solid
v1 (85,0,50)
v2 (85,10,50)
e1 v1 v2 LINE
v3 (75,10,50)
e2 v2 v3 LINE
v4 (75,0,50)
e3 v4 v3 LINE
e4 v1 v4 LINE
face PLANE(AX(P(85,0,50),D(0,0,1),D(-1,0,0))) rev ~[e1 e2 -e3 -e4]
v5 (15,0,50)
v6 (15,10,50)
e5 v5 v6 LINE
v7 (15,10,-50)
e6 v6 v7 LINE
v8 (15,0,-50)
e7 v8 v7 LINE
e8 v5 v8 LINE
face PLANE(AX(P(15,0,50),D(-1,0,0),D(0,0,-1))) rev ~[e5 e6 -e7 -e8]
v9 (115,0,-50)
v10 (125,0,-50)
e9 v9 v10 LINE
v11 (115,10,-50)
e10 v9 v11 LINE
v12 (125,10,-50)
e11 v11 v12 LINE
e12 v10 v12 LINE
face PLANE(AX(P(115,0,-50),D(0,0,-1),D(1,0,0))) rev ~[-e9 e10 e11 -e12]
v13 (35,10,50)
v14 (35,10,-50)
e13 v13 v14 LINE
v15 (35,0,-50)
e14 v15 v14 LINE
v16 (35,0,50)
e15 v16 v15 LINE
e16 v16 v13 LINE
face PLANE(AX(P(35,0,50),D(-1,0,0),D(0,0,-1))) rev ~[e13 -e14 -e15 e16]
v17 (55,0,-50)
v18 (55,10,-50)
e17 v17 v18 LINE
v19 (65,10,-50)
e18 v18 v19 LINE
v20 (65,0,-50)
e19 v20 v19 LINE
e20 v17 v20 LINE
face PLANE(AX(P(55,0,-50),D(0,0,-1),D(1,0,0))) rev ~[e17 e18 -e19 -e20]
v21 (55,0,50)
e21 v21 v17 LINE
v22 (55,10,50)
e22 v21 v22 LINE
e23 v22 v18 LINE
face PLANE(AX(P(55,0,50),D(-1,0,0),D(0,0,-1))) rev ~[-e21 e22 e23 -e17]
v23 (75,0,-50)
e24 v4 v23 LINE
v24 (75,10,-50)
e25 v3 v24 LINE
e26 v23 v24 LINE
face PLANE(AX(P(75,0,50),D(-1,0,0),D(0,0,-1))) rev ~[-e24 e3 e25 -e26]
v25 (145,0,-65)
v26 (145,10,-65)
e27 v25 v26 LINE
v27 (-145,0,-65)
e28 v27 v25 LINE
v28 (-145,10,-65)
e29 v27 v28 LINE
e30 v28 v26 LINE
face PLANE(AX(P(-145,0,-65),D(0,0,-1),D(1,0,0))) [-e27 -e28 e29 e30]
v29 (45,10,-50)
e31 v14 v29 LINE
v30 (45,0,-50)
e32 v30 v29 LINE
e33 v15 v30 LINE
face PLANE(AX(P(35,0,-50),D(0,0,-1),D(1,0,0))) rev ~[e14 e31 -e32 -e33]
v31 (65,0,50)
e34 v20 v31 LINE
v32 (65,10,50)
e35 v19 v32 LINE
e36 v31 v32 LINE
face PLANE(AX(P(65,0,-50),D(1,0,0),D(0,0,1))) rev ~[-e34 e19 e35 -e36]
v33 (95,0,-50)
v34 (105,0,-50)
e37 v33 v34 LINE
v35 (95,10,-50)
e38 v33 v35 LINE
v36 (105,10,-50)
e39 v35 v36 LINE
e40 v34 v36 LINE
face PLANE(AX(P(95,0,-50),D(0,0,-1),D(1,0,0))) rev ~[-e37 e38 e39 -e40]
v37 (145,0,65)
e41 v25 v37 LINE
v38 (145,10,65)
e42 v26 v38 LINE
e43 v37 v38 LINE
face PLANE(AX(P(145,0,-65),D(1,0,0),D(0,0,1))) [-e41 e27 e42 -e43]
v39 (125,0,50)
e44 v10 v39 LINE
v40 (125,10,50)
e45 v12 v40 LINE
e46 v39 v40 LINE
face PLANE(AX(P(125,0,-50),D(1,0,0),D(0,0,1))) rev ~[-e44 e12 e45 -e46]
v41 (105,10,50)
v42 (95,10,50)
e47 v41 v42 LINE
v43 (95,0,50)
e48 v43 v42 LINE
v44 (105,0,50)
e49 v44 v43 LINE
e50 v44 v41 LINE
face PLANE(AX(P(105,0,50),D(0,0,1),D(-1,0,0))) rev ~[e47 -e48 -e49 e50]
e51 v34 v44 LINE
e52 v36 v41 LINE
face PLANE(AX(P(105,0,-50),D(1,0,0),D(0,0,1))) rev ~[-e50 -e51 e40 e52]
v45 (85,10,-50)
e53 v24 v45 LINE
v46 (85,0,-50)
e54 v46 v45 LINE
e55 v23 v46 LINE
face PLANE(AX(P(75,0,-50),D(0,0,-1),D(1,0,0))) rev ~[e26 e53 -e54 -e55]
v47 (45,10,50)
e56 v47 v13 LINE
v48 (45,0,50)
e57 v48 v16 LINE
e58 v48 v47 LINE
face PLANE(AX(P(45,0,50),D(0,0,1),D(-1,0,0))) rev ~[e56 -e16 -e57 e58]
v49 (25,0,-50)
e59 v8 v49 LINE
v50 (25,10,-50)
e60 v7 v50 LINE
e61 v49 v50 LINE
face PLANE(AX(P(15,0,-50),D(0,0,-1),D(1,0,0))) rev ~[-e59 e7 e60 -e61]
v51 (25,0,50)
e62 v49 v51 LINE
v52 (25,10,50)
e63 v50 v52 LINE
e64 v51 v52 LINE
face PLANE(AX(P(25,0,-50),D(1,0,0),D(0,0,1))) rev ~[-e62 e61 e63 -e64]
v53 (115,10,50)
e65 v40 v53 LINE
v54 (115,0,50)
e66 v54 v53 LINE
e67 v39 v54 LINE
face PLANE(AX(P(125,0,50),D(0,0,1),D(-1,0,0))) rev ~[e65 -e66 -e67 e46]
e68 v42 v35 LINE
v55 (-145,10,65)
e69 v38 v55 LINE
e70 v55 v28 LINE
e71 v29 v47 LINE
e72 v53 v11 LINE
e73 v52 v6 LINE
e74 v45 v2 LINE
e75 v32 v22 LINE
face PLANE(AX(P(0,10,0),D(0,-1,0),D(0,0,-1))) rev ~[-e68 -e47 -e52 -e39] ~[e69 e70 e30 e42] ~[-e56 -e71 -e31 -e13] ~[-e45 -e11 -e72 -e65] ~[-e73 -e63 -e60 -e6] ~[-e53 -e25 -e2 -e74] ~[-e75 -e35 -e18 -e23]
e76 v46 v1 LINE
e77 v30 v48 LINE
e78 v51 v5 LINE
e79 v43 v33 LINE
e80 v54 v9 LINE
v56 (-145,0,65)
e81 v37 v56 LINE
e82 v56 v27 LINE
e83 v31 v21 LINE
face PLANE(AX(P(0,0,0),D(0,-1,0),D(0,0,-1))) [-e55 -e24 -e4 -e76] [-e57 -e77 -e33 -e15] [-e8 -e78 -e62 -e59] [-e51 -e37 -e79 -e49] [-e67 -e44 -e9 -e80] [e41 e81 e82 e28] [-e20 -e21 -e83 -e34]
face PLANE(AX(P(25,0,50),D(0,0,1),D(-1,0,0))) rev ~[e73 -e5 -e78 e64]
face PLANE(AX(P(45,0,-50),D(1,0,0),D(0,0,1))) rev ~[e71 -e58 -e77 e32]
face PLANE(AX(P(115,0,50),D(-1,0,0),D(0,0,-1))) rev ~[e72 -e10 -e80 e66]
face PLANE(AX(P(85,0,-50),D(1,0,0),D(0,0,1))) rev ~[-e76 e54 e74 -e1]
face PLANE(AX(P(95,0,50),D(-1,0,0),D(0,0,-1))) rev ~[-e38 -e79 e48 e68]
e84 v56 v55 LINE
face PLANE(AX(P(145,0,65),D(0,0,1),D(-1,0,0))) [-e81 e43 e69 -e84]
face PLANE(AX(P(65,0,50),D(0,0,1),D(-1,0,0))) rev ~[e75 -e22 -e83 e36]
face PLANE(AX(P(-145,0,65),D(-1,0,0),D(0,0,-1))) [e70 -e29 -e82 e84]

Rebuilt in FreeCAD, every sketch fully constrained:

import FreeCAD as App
import Part
import Sketcher

doc = App.newDocument("Part")
params = doc.addObject("Spreadsheet::Sheet", "Params")
for row, (alias, value) in enumerate([
    ("sketch1_width", "290 mm"),
    ("sketch1_height", "130 mm"),
    ("pad1_length", "10 mm"),
    ("sketch2_width", "10 mm"),
    ("sketch2_height", "100 mm"),
    ("pocket1_length", "126.4806 mm"),
], start=1):
    params.set(f"A{row}", alias)
    params.set(f"B{row}", "=" + value)
    params.setAlias(f"B{row}", alias)

body = doc.addObject("PartDesign::Body", "Body")

sketch1 = doc.addObject("Sketcher::SketchObject", "Sketch")
body.addObject(sketch1)
sketch1.AttachmentSupport = (doc.XZ_Plane, [""])
sketch1.MapMode = "FlatFace"
sketch1.addGeometry(Part.LineSegment(App.Vector(-145, 65, 0), App.Vector(-145, -65, 0)), False)
sketch1.addGeometry(Part.LineSegment(App.Vector(-145, -65, 0), App.Vector(145, -65, 0)), False)
sketch1.addGeometry(Part.LineSegment(App.Vector(145, -65, 0), App.Vector(145, 65, 0)), False)
sketch1.addGeometry(Part.LineSegment(App.Vector(145, 65, 0), App.Vector(-145, 65, 0)), False)
sketch1.addConstraint(Sketcher.Constraint("Coincident", 0, 2, 1, 1))
sketch1.addConstraint(Sketcher.Constraint("Coincident", 1, 2, 2, 1))
sketch1.addConstraint(Sketcher.Constraint("Coincident", 2, 2, 3, 1))
sketch1.addConstraint(Sketcher.Constraint("Coincident", 3, 2, 0, 1))
sketch1.addConstraint(Sketcher.Constraint("Vertical", 0))
sketch1.addConstraint(Sketcher.Constraint("Horizontal", 1))
sketch1.addConstraint(Sketcher.Constraint("Vertical", 2))
sketch1.addConstraint(Sketcher.Constraint("Horizontal", 3))
sketch1.addConstraint(Sketcher.Constraint("Symmetric", 0, 2, 2, 2, -1, 1))
sketch1.addConstraint(Sketcher.Constraint("DistanceX", 1, 1, 1, 2, 290.0))
sketch1.addConstraint(Sketcher.Constraint("DistanceY", 0, 2, 0, 1, 130.0))
sketch1.setExpression("Constraints[9]", "Params.sketch1_width")
sketch1.setExpression("Constraints[10]", "Params.sketch1_height")
pad1 = doc.addObject("PartDesign::Pad", "Pad")
body.addObject(pad1)
pad1.Profile = sketch1
pad1.setExpression("Length", "Params.pad1_length")
pad1.Reversed = True

sketch2 = doc.addObject("Sketcher::SketchObject", "Sketch001")
body.addObject(sketch2)
sketch2.AttachmentSupport = (doc.XZ_Plane, [""])
sketch2.MapMode = "FlatFace"
sketch2.addGeometry(Part.LineSegment(App.Vector(15, 50, 0), App.Vector(15, -50, 0)), False)
sketch2.addGeometry(Part.LineSegment(App.Vector(15, -50, 0), App.Vector(25, -50, 0)), False)
sketch2.addGeometry(Part.LineSegment(App.Vector(25, -50, 0), App.Vector(25, 50, 0)), False)
sketch2.addGeometry(Part.LineSegment(App.Vector(25, 50, 0), App.Vector(15, 50, 0)), False)
sketch2.addGeometry(Part.LineSegment(App.Vector(35, 50, 0), App.Vector(35, -50, 0)), False)
sketch2.addGeometry(Part.LineSegment(App.Vector(35, -50, 0), App.Vector(45, -50, 0)), False)
sketch2.addGeometry(Part.LineSegment(App.Vector(45, -50, 0), App.Vector(45, 50, 0)), False)
sketch2.addGeometry(Part.LineSegment(App.Vector(45, 50, 0), App.Vector(35, 50, 0)), False)
sketch2.addGeometry(Part.LineSegment(App.Vector(55, 50, 0), App.Vector(55, -50, 0)), False)
sketch2.addGeometry(Part.LineSegment(App.Vector(55, -50, 0), App.Vector(65, -50, 0)), False)
sketch2.addGeometry(Part.LineSegment(App.Vector(65, -50, 0), App.Vector(65, 50, 0)), False)
sketch2.addGeometry(Part.LineSegment(App.Vector(65, 50, 0), App.Vector(55, 50, 0)), False)
sketch2.addGeometry(Part.LineSegment(App.Vector(75, 50, 0), App.Vector(75, -50, 0)), False)
sketch2.addGeometry(Part.LineSegment(App.Vector(75, -50, 0), App.Vector(85, -50, 0)), False)
sketch2.addGeometry(Part.LineSegment(App.Vector(85, -50, 0), App.Vector(85, 50, 0)), False)
sketch2.addGeometry(Part.LineSegment(App.Vector(85, 50, 0), App.Vector(75, 50, 0)), False)
sketch2.addGeometry(Part.LineSegment(App.Vector(95, 50, 0), App.Vector(95, -50, 0)), False)
sketch2.addGeometry(Part.LineSegment(App.Vector(95, -50, 0), App.Vector(105, -50, 0)), False)
sketch2.addGeometry(Part.LineSegment(App.Vector(105, -50, 0), App.Vector(105, 50, 0)), False)
sketch2.addGeometry(Part.LineSegment(App.Vector(105, 50, 0), App.Vector(95, 50, 0)), False)
sketch2.addGeometry(Part.LineSegment(App.Vector(115, 50, 0), App.Vector(115, -50, 0)), False)
sketch2.addGeometry(Part.LineSegment(App.Vector(115, -50, 0), App.Vector(125, -50, 0)), False)
sketch2.addGeometry(Part.LineSegment(App.Vector(125, -50, 0), App.Vector(125, 50, 0)), False)
sketch2.addGeometry(Part.LineSegment(App.Vector(125, 50, 0), App.Vector(115, 50, 0)), False)
sketch2.addConstraint(Sketcher.Constraint("Coincident", 0, 2, 1, 1))
sketch2.addConstraint(Sketcher.Constraint("Coincident", 1, 2, 2, 1))
sketch2.addConstraint(Sketcher.Constraint("Coincident", 2, 2, 3, 1))
sketch2.addConstraint(Sketcher.Constraint("Coincident", 3, 2, 0, 1))
sketch2.addConstraint(Sketcher.Constraint("Coincident", 4, 2, 5, 1))
sketch2.addConstraint(Sketcher.Constraint("Coincident", 5, 2, 6, 1))
sketch2.addConstraint(Sketcher.Constraint("Coincident", 6, 2, 7, 1))
sketch2.addConstraint(Sketcher.Constraint("Coincident", 7, 2, 4, 1))
sketch2.addConstraint(Sketcher.Constraint("Coincident", 8, 2, 9, 1))
sketch2.addConstraint(Sketcher.Constraint("Coincident", 9, 2, 10, 1))
sketch2.addConstraint(Sketcher.Constraint("Coincident", 10, 2, 11, 1))
sketch2.addConstraint(Sketcher.Constraint("Coincident", 11, 2, 8, 1))
sketch2.addConstraint(Sketcher.Constraint("Coincident", 12, 2, 13, 1))
sketch2.addConstraint(Sketcher.Constraint("Coincident", 13, 2, 14, 1))
sketch2.addConstraint(Sketcher.Constraint("Coincident", 14, 2, 15, 1))
sketch2.addConstraint(Sketcher.Constraint("Coincident", 15, 2, 12, 1))
sketch2.addConstraint(Sketcher.Constraint("Coincident", 16, 2, 17, 1))
sketch2.addConstraint(Sketcher.Constraint("Coincident", 17, 2, 18, 1))
sketch2.addConstraint(Sketcher.Constraint("Coincident", 18, 2, 19, 1))
sketch2.addConstraint(Sketcher.Constraint("Coincident", 19, 2, 16, 1))
sketch2.addConstraint(Sketcher.Constraint("Coincident", 20, 2, 21, 1))
sketch2.addConstraint(Sketcher.Constraint("Coincident", 21, 2, 22, 1))
sketch2.addConstraint(Sketcher.Constraint("Coincident", 22, 2, 23, 1))
sketch2.addConstraint(Sketcher.Constraint("Coincident", 23, 2, 20, 1))
sketch2.addConstraint(Sketcher.Constraint("Vertical", 0))
sketch2.addConstraint(Sketcher.Constraint("Horizontal", 1))
sketch2.addConstraint(Sketcher.Constraint("Vertical", 2))
sketch2.addConstraint(Sketcher.Constraint("Horizontal", 3))
sketch2.addConstraint(Sketcher.Constraint("Vertical", 4))
sketch2.addConstraint(Sketcher.Constraint("Horizontal", 5))
sketch2.addConstraint(Sketcher.Constraint("Vertical", 6))
sketch2.addConstraint(Sketcher.Constraint("Horizontal", 7))
sketch2.addConstraint(Sketcher.Constraint("Vertical", 8))
sketch2.addConstraint(Sketcher.Constraint("Horizontal", 9))
sketch2.addConstraint(Sketcher.Constraint("Vertical", 10))
sketch2.addConstraint(Sketcher.Constraint("Horizontal", 11))
sketch2.addConstraint(Sketcher.Constraint("Vertical", 12))
sketch2.addConstraint(Sketcher.Constraint("Horizontal", 13))
sketch2.addConstraint(Sketcher.Constraint("Vertical", 14))
sketch2.addConstraint(Sketcher.Constraint("Horizontal", 15))
sketch2.addConstraint(Sketcher.Constraint("Vertical", 16))
sketch2.addConstraint(Sketcher.Constraint("Horizontal", 17))
sketch2.addConstraint(Sketcher.Constraint("Vertical", 18))
sketch2.addConstraint(Sketcher.Constraint("Horizontal", 19))
sketch2.addConstraint(Sketcher.Constraint("Vertical", 20))
sketch2.addConstraint(Sketcher.Constraint("Horizontal", 21))
sketch2.addConstraint(Sketcher.Constraint("Vertical", 22))
sketch2.addConstraint(Sketcher.Constraint("Horizontal", 23))
sketch2.addConstraint(Sketcher.Constraint("Horizontal", 1, 2, 4, 2))
sketch2.addConstraint(Sketcher.Constraint("Horizontal", 3, 2, 6, 2))
sketch2.addConstraint(Sketcher.Constraint("Horizontal", 5, 2, 8, 2))
sketch2.addConstraint(Sketcher.Constraint("Horizontal", 7, 2, 10, 2))
sketch2.addConstraint(Sketcher.Constraint("Horizontal", 9, 2, 12, 2))
sketch2.addConstraint(Sketcher.Constraint("Horizontal", 11, 2, 14, 2))
sketch2.addConstraint(Sketcher.Constraint("Horizontal", 13, 2, 16, 2))
sketch2.addConstraint(Sketcher.Constraint("Horizontal", 15, 2, 18, 2))
sketch2.addConstraint(Sketcher.Constraint("Horizontal", 17, 2, 20, 2))
sketch2.addConstraint(Sketcher.Constraint("Horizontal", 19, 2, 22, 2))
sketch2.addConstraint(Sketcher.Constraint("Equal", 3, 5))
sketch2.addConstraint(Sketcher.Constraint("Equal", 7, 9))
sketch2.addConstraint(Sketcher.Constraint("Equal", 11, 13))
sketch2.addConstraint(Sketcher.Constraint("Equal", 15, 17))
sketch2.addConstraint(Sketcher.Constraint("Equal", 19, 21))
sketch2.addConstraint(Sketcher.Constraint("DistanceX", 1, 1, 1, 2, 10.0))
sketch2.addConstraint(Sketcher.Constraint("DistanceY", 0, 2, 0, 1, 100.0))
sketch2.addConstraint(Sketcher.Constraint("DistanceX", -1, 1, 0, 2, 15.0))
sketch2.addConstraint(Sketcher.Constraint("DistanceY", 0, 2, -1, 1, 50.0))
sketch2.addConstraint(Sketcher.Constraint("DistanceX", -1, 1, 4, 2, 35.0))
sketch2.addConstraint(Sketcher.Constraint("DistanceX", -1, 1, 8, 2, 55.0))
sketch2.addConstraint(Sketcher.Constraint("DistanceX", -1, 1, 12, 2, 75.0))
sketch2.addConstraint(Sketcher.Constraint("DistanceX", -1, 1, 16, 2, 95.0))
sketch2.addConstraint(Sketcher.Constraint("DistanceX", -1, 1, 20, 2, 115.0))
sketch2.setExpression("Constraints[63]", "Params.sketch2_width")
sketch2.setExpression("Constraints[64]", "Params.sketch2_height")
pocket1 = doc.addObject("PartDesign::Pocket", "Pocket")
body.addObject(pocket1)
pocket1.Profile = sketch2
pocket1.setExpression("Length", "Params.pocket1_length")

doc.recompute()
